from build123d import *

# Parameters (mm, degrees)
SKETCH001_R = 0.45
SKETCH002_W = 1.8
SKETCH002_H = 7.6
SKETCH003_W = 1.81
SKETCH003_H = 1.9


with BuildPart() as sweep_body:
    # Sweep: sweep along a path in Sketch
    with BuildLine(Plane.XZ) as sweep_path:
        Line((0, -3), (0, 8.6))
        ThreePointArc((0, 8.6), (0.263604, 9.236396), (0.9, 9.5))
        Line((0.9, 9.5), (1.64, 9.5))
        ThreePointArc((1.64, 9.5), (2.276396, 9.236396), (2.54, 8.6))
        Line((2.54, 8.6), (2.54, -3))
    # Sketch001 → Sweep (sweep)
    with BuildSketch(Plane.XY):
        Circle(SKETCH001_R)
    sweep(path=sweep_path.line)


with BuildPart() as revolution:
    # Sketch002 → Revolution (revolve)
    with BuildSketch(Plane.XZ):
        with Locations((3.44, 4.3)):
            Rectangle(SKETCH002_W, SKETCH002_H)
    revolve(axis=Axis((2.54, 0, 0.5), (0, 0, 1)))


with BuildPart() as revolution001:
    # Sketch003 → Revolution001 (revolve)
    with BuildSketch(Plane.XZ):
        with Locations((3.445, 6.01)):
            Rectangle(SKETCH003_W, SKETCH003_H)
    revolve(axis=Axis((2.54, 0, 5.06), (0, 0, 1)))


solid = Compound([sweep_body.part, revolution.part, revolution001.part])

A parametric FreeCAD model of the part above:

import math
import FreeCAD as App
import Part
import Sketcher
Q = App.Units.Quantity


def add_polygon(sketch, points):
    """Adds a closed chain of lines whose ends are joined by coincident constraints."""
    first, n = sketch.GeometryCount, len(points)
    for a, b in zip(points, points[1:] + points[:1]):
        sketch.addGeometry(Part.LineSegment(App.Vector(*a, 0), App.Vector(*b, 0)), False)
    for i in range(n):
        sketch.addConstraint(Sketcher.Constraint("Coincident", first + i, 2, first + (i + 1) % n, 1))

doc = App.newDocument("Part")
body = doc.addObject("PartDesign::Body", "Body")

# Sketch on XY plane
sketch1 = body.newObject("Sketcher::SketchObject", "Sketch")
sketch1.AttachmentSupport = (doc.getObject("XY_Plane"), [""])
sketch1.MapMode = "FlatFace"
sketch1.addGeometry(Part.Circle(App.Vector(0, 0, 0), App.Vector(0, 0, 1), 0.45), False)
sketch1.addConstraint([
    Sketcher.Constraint("Coincident", 0, 3, -1, 1),
    Sketcher.Constraint("Diameter", 0, Q("0.9 mm")),
])

# Sketch on XZ plane
sketch2 = body.newObject("Sketcher::SketchObject", "Sketch001")
sketch2.AttachmentSupport = (doc.getObject("XZ_Plane"), [""])
sketch2.MapMode = "FlatFace"
sketch2.addGeometry([
    Part.LineSegment(App.Vector(0, -3, 0), App.Vector(0, 8.6, 0)),  # 0
    Part.ArcOfCircle(Part.Circle(App.Vector(0.9, 8.6, 0), App.Vector(0, 0, 1), 0.9), math.radians(90), math.radians(180)),  # 1
    Part.LineSegment(App.Vector(0.9, 9.5, 0), App.Vector(1.6, 9.5, 0)),  # 2
    Part.ArcOfCircle(Part.Circle(App.Vector(1.6, 8.6, 0), App.Vector(0, 0, 1), 0.9), math.radians(0), math.radians(90)),  # 3
    Part.LineSegment(App.Vector(2.5, 8.6, 0), App.Vector(2.5, -3, 0)),  # 4
], False)
sketch2.addConstraint([
    Sketcher.Constraint("Tangent", 0, 2, 1, 2),
    Sketcher.Constraint("Tangent", 1, 1, 2, 1),
    Sketcher.Constraint("Tangent", 2, 2, 3, 2),
    Sketcher.Constraint("Tangent", 3, 1, 4, 1),
    Sketcher.Constraint("Vertical", 0),
    Sketcher.Constraint("Horizontal", 2),
    Sketcher.Constraint("Vertical", 4),
    Sketcher.Constraint("Equal", 1, 3),
    Sketcher.Constraint("PointOnObject", 0, 1, -2),
    Sketcher.Constraint("Horizontal", 0, 1, 4, 2),
    Sketcher.Constraint("Radius", 1, Q("0.9 mm")),
    Sketcher.Constraint("DistanceY", 0, 1, 0, 2, Q("11.6 mm")),
    Sketcher.Constraint("DistanceY", 0, 1, -1, 1, Q("3 mm")),
    Sketcher.Constraint("DistanceX", 2, 1, 2, 2, Q("0.74 mm")),
])
doc.recompute()

additivepipe = body.newObject("PartDesign::AdditivePipe", "AdditivePipe")
additivepipe.Profile = sketch1
additivepipe.Spine = (sketch2, ["Edge1", "Edge2", "Edge3", "Edge4", "Edge5"])
body2 = doc.addObject("PartDesign::Body", "Body001")

# Sketch on XZ plane
sketch3 = body2.newObject("Sketcher::SketchObject", "Sketch002")
sketch3.AttachmentSupport = (doc.getObject("XZ_Plane001"), [""])
sketch3.MapMode = "FlatFace"
add_polygon(sketch3, [(2.5, 8.1), (2.5, 0.5), (4.3, 0.5), (4.3, 8.1)])  # lines 0-3
sketch3.addGeometry(Part.LineSegment(App.Vector(2.5, 0.5, 0), App.Vector(2.5, 8.1, 0)), True)  # axis
sketch3.addConstraint([
    Sketcher.Constraint("Vertical", 0),
    Sketcher.Constraint("Horizontal", 1),
    Sketcher.Constraint("Vertical", 2),
    Sketcher.Constraint("Horizontal", 3),
    Sketcher.Constraint("Vertical", 4),
    Sketcher.Constraint("Coincident", 4, 1, 0, 2),
    Sketcher.Constraint("Horizontal", 2, 2, 4, 2),
    Sketcher.Constraint("DistanceX", 1, 1, 1, 2, Q("1.8 mm")),
    Sketcher.Constraint("DistanceY", 0, 2, 0, 1, Q("7.6 mm")),
    Sketcher.Constraint("DistanceY", -1, 1, 0, 2, Q("0.5 mm")),
    Sketcher.Constraint("DistanceX", -1, 1, 0, 2, Q("2.54 mm")),
])
revolution = body2.newObject("PartDesign::Revolution", "Revolution")
revolution.Profile = sketch3
revolution.ReferenceAxis = (sketch3, ["Axis0"])
revolution.Angle = 360
body3 = doc.addObject("PartDesign::Body", "Body002")

# Sketch on XZ plane
sketch4 = body3.newObject("Sketcher::SketchObject", "Sketch003")
sketch4.AttachmentSupport = (doc.getObject("XZ_Plane002"), [""])
sketch4.MapMode = "FlatFace"
add_polygon(sketch4, [(2.5, 7), (2.5, 5.1), (4.3, 5.1), (4.3, 7)])  # lines 0-3
sketch4.addGeometry(Part.LineSegment(App.Vector(2.5, 5.1, 0), App.Vector(2.5, 7, 0)), True)  # axis
sketch4.addConstraint([
    Sketcher.Constraint("Vertical", 0),
    Sketcher.Constraint("Horizontal", 1),
    Sketcher.Constraint("Vertical", 2),
    Sketcher.Constraint("Horizontal", 3),
    Sketcher.Constraint("Vertical", 4),
    Sketcher.Constraint("Coincident", 4, 1, 0, 2),
    Sketcher.Constraint("Horizontal", 2, 2, 4, 2),
    Sketcher.Constraint("DistanceY", 0, 2, 0, 1, Q("1.9 mm")),
    Sketcher.Constraint("DistanceX", 1, 1, 1, 2, Q("1.81 mm")),
    Sketcher.Constraint("DistanceX", -1, 1, 0, 2, Q("2.54 mm")),
    Sketcher.Constraint("DistanceY", -1, 1, 0, 2, Q("5.06 mm")),
])
revolution2 = body3.newObject("PartDesign::Revolution", "Revolution001")
revolution2.Profile = sketch4
revolution2.ReferenceAxis = (sketch4, ["Axis0"])
revolution2.Angle = 360

doc.recompute()
